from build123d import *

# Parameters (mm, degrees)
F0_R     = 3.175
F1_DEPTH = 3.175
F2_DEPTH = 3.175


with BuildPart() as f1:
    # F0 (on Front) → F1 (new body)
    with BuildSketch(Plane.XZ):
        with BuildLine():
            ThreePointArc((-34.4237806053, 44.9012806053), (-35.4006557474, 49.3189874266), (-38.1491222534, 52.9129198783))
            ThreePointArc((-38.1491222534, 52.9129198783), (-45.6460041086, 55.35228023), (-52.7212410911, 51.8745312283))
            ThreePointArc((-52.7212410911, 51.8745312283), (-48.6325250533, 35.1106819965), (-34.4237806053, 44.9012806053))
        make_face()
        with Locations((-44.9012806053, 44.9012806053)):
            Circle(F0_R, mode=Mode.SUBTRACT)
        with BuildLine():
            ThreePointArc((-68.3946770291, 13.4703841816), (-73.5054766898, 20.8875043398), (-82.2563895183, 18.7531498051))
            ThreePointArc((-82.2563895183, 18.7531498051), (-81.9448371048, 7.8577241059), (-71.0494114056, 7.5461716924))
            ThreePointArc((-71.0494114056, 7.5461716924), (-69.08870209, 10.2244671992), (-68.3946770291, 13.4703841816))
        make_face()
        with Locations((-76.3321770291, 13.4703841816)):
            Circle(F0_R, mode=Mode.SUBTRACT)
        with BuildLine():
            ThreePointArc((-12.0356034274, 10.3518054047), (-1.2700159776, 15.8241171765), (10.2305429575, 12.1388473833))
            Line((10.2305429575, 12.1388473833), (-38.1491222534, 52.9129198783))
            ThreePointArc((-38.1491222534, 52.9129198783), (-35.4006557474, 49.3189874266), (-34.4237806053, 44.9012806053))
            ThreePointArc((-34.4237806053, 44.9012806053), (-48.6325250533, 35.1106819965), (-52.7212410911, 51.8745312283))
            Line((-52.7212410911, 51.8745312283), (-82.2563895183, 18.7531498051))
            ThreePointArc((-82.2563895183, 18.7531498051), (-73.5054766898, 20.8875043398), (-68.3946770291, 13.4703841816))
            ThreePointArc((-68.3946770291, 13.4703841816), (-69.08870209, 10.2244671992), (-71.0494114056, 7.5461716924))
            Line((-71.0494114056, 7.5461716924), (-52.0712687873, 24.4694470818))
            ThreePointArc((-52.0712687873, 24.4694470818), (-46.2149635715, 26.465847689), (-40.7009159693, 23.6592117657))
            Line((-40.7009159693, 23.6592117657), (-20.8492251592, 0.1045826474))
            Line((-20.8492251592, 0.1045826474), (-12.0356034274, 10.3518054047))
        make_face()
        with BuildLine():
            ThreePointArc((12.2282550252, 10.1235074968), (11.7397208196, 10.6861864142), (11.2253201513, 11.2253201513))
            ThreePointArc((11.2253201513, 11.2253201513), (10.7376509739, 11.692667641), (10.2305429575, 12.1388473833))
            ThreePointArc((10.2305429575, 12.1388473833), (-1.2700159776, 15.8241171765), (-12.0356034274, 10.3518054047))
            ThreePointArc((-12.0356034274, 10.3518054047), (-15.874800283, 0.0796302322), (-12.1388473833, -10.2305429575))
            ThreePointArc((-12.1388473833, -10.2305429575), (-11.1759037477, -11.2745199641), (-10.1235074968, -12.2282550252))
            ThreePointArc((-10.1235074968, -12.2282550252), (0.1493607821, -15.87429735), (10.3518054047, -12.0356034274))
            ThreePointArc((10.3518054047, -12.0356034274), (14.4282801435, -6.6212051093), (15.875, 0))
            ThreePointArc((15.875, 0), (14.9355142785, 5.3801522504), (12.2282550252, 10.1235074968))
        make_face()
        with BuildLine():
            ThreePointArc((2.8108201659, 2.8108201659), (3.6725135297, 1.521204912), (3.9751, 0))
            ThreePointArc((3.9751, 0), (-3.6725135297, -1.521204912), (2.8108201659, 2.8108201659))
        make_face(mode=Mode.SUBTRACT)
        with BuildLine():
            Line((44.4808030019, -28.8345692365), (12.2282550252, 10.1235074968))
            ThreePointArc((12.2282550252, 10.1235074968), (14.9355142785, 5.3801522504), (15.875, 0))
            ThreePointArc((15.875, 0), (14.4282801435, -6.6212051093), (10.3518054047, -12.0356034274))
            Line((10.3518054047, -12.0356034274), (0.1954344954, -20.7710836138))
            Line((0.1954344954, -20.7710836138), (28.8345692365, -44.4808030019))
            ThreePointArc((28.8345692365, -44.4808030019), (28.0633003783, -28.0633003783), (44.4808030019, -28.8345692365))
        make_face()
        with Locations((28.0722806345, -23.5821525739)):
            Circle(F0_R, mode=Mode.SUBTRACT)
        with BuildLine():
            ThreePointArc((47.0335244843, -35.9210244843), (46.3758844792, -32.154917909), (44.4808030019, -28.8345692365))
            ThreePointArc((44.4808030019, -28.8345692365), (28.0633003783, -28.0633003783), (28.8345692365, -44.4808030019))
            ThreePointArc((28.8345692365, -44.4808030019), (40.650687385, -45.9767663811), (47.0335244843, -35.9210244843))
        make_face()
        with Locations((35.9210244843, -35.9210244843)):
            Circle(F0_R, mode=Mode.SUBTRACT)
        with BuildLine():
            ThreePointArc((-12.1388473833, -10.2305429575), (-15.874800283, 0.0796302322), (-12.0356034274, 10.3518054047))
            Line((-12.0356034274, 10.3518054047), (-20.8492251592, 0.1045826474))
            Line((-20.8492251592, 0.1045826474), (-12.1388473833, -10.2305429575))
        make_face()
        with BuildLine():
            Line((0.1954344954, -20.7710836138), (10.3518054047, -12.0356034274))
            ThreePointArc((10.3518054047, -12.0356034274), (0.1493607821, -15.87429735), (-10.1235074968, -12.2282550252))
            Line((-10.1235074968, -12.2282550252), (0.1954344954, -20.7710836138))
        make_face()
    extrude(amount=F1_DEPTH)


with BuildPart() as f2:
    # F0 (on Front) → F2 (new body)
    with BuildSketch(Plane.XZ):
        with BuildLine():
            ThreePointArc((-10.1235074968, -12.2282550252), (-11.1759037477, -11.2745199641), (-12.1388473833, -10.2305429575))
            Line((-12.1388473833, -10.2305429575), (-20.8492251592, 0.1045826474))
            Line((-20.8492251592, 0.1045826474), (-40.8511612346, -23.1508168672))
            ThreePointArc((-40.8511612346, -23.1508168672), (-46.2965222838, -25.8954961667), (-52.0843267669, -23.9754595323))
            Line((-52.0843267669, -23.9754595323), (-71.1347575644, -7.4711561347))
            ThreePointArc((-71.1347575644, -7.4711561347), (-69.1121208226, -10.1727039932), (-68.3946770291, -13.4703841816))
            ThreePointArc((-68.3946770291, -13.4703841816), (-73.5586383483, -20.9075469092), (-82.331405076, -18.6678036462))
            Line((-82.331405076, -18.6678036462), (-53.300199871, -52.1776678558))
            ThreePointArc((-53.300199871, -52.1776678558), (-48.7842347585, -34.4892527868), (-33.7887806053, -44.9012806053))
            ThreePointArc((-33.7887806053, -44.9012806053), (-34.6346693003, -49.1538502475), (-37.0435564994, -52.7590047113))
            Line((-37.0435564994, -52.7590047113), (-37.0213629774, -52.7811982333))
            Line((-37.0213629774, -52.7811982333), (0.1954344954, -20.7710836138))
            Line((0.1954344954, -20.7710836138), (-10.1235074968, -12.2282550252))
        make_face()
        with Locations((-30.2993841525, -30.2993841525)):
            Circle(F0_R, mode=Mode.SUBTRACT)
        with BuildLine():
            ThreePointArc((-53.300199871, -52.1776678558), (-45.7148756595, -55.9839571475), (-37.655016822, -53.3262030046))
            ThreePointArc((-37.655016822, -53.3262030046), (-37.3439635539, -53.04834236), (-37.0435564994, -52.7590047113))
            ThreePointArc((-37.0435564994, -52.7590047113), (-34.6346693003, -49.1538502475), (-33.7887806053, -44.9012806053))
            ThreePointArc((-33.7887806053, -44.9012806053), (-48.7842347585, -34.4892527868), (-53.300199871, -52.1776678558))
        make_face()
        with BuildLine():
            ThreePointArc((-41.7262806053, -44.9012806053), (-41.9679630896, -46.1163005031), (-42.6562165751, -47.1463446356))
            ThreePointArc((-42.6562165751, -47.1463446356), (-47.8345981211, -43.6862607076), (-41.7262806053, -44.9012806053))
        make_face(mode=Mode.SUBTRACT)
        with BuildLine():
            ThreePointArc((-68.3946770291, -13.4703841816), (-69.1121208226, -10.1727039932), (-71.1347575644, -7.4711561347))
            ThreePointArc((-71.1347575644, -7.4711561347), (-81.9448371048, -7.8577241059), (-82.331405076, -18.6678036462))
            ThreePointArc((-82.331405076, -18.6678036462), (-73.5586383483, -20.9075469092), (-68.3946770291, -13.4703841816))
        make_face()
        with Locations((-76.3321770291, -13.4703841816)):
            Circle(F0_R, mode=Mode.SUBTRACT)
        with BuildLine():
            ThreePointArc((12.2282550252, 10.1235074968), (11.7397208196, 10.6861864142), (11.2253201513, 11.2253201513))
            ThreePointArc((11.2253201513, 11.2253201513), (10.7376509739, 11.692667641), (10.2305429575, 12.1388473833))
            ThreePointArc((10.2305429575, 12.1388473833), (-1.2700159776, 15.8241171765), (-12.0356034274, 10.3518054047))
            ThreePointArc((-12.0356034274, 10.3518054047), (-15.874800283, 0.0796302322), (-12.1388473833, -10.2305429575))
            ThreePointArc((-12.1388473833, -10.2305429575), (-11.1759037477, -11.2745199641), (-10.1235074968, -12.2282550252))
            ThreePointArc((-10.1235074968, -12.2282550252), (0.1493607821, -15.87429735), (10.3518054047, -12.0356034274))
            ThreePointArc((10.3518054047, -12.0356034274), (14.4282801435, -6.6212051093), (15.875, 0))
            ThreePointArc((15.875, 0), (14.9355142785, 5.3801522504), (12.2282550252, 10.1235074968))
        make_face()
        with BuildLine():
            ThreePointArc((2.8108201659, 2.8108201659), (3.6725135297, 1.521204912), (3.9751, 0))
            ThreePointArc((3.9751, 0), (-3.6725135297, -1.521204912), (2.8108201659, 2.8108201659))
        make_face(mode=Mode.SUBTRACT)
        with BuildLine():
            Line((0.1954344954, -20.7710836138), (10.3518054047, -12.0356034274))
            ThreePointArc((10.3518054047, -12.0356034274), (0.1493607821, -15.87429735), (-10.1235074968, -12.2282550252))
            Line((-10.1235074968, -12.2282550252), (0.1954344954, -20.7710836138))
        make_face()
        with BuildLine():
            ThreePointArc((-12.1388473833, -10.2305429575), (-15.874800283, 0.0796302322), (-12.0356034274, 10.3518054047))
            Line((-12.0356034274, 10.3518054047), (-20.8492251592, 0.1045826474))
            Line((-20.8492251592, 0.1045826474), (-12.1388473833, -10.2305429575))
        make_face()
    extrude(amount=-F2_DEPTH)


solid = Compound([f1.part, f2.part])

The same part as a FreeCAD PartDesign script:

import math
import FreeCAD as App
import Part
import Sketcher
Q = App.Units.Quantity

doc = App.newDocument("Part")
body = doc.addObject("PartDesign::Body", "Body")

# Sketch on XZ plane
sketch1 = body.newObject("Sketcher::SketchObject", "Sketch")
sketch1.AttachmentSupport = (doc.getObject("XZ_Plane"), [""])
sketch1.MapMode = "FlatFace"
sketch1.addGeometry([
    Part.ArcOfCircle(Part.Circle(App.Vector(-44.9, 44.9, 0), App.Vector(0, 0, 1), 10.5), math.radians(50), math.radians(138)),  # 0
    Part.LineSegment(App.Vector(-52.7, 51.9, 0), App.Vector(-82.3, 18.8, 0)),  # 1
    Part.ArcOfCircle(Part.Circle(App.Vector(-76.3, 13.5, 0), App.Vector(0, 0, 1), 7.9), math.radians(138), math.radians(312)),  # 2
    Part.LineSegment(App.Vector(-71, 7.5, 0), App.Vector(-52.1, 24.5, 0)),  # 3
    Part.ArcOfCircle(Part.Circle(App.Vector(-46.8, 18.5, 0), App.Vector(0, 0, 1), 8), math.radians(40), math.radians(132)),  # 4
    Part.LineSegment(App.Vector(-40.7, 23.7, 0), App.Vector(-12.1, -10.2, 0)),  # 5
    Part.ArcOfCircle(Part.Circle(App.Vector(0, 0, 0), App.Vector(0, 0, 1), 15.9), math.radians(-139.88), math.radians(-129.62)),  # 6
    Part.LineSegment(App.Vector(-10.1, -12.2, 0), App.Vector(0.2, -20.8, 0)),  # 7
    Part.LineSegment(App.Vector(0.2, -20.8, 0), App.Vector(28.8, -44.5, 0)),  # 8
    Part.ArcOfCircle(Part.Circle(App.Vector(35.9, -35.9, 0), App.Vector(0, 0, 1), 11.1), math.radians(-130), math.radians(0)),  # 9
    Part.ArcOfCircle(Part.Circle(App.Vector(35.9, -35.9, 0), App.Vector(0, 0, 1), 11.1), math.radians(0), math.radians(40)),  # 10
    Part.LineSegment(App.Vector(44.5, -28.8, 0), App.Vector(12.2, 10.1, 0)),  # 11
    Part.ArcOfCircle(Part.Circle(App.Vector(0, 0, 0), App.Vector(0, 0, 1), 15.9), math.radians(39.62), math.radians(45)),  # 12
    Part.ArcOfCircle(Part.Circle(App.Vector(0, 0, 0), App.Vector(0, 0, 1), 15.9), math.radians(45), math.radians(49.88)),  # 13
    Part.LineSegment(App.Vector(10.2, 12.1, 0), App.Vector(-38.1, 52.9, 0)),  # 14
    Part.Circle(App.Vector(35.9, -35.9, 0), App.Vector(0, 0, 1), 3.2),  # 15
    Part.Circle(App.Vector(28.1, -23.6, 0), App.Vector(0, 0, 1), 3.2),  # 16
    Part.ArcOfCircle(Part.Circle(App.Vector(0, 0, 0), App.Vector(0, 0, 1), 4), math.radians(45), math.radians(360)),  # 17
    Part.ArcOfCircle(Part.Circle(App.Vector(0, 0, 0), App.Vector(0, 0, 1), 4), math.radians(0), math.radians(45)),  # 18
    Part.Circle(App.Vector(-76.3, 13.5, 0), App.Vector(0, 0, 1), 3.2),  # 19
    Part.Circle(App.Vector(-44.9, 44.9, 0), App.Vector(0, 0, 1), 3.2),  # 20
], False)
sketch1.addConstraint([
    Sketcher.Constraint("Tangent", 0, 2, 1, 1),
    Sketcher.Constraint("Tangent", 1, 2, 2, 1),
    Sketcher.Constraint("Tangent", 2, 2, 3, 1),
    Sketcher.Constraint("Tangent", 3, 2, 4, 2),
    Sketcher.Constraint("Tangent", 4, 1, 5, 1),
    Sketcher.Constraint("Tangent", 5, 2, 6, 1),
    Sketcher.Constraint("Tangent", 6, 2, 7, 1),
    Sketcher.Constraint("Coincident", 7, 2, 8, 1),
    Sketcher.Constraint("Tangent", 8, 2, 9, 1),
    Sketcher.Constraint("Tangent", 9, 2, 10, 1),
    Sketcher.Constraint("Tangent", 10, 2, 11, 1),
    Sketcher.Constraint("Tangent", 11, 2, 12, 1),
    Sketcher.Constraint("Tangent", 12, 2, 13, 1),
    Sketcher.Constraint("Tangent", 13, 2, 14, 1),
    Sketcher.Constraint("Tangent", 14, 2, 0, 1),
    Sketcher.Constraint("Tangent", 17, 1, 18, 2),
    Sketcher.Constraint("Coincident", 18, 1, 17, 2),
    Sketcher.Constraint("Coincident", 6, 3, -1, 1),
    Sketcher.Constraint("Coincident", 12, 3, -1, 1),
    Sketcher.Constraint("Coincident", 17, 3, -1, 1),
    Sketcher.Constraint("Coincident", 15, 3, 9, 3),
    Sketcher.Constraint("Coincident", 19, 3, 2, 3),
    Sketcher.Constraint("Coincident", 20, 3, 0, 3),
    Sketcher.Constraint("Equal", 9, 10),
    Sketcher.Constraint("Equal", 6, 12),
    Sketcher.Constraint("Equal", 12, 13),
    Sketcher.Constraint("Equal", 15, 16),
    Sketcher.Constraint("Equal", 16, 19),
    Sketcher.Constraint("Equal", 19, 20),
    Sketcher.Constraint("PointOnObject", 18, 1, -1),
    Sketcher.Constraint("Parallel", 7, 8),
    Sketcher.Constraint("Horizontal", 15, 3, 9, 2),
    Sketcher.Constraint("Diameter", 15, Q("0.25 in")),
    Sketcher.Constraint("Radius", 2, Q("0.3125 in")),
    Sketcher.Constraint("Radius", 4, Q("0.313 in")),
    Sketcher.Constraint("Radius", 6, Q("0.625 in")),
    Sketcher.Constraint("Radius", 9, Q("0.4375 in")),
    Sketcher.Constraint("Radius", 0, Q("0.4125 in")),
    Sketcher.Constraint("Radius", 17, Q("0.1565 in")),
    Sketcher.Constraint("DistanceX", 2, 3, 9, 3, Q("112.253202 mm")),
    Sketcher.Constraint("Distance", 1, Q("44.377369 mm")),
    Sketcher.Constraint("Distance", 8, Q("37.179979 mm")),
    Sketcher.Constraint("Distance", 14, Q("63.27019 mm")),
    Sketcher.Constraint("DistanceX", 0, 3, -1, 1, Q("44.901281 mm")),
    Sketcher.Constraint("DistanceX", 4, 3, -1, 1, Q("46.780051 mm")),
    Sketcher.Constraint("DistanceX", -1, 1, 16, 3, Q("28.072281 mm")),
    Sketcher.Constraint("DistanceX", 0, 2, -1, 1, Q("52.721241 mm")),
    Sketcher.Constraint("DistanceX", 2, 2, -1, 1, Q("71.049411 mm")),
    Sketcher.Constraint("DistanceX", -1, 1, 8, 2, Q("28.834569 mm")),
    Sketcher.Constraint("DistanceX", -1, 1, 12, 2, Q("11.22532 mm")),
    Sketcher.Constraint("DistanceX", -1, 1, 17, 1, Q("2.81082 mm")),
    Sketcher.Constraint("DistanceY", 9, 3, 16, 3, Q("12.338872 mm")),
])
pad1 = body.newObject("PartDesign::Pad", "Pad")
pad1.Profile = sketch1
pad1.Length = Q("0.125 in")
body2 = doc.addObject("PartDesign::Body", "Body001")

# Sketch on XZ plane
sketch2 = body2.newObject("Sketcher::SketchObject", "Sketch001")
sketch2.AttachmentSupport = (doc.getObject("XZ_Plane001"), [""])
sketch2.MapMode = "FlatFace"
sketch2.addGeometry([
    Part.LineSegment(App.Vector(-37.021363, -52.781198, 0), App.Vector(10.351805, -12.035603, 0)),  # 0
    Part.ArcOfCircle(Part.Circle(App.Vector(0, 0, 0), App.Vector(0, 0, 1), 15.875), math.radians(-49.301222), math.radians(0)),  # 1
    Part.ArcOfCircle(Part.Circle(App.Vector(0, 0, 0), App.Vector(0, 0, 1), 15.875), math.radians(0), math.radians(39.620621)),  # 2
    Part.ArcOfCircle(Part.Circle(App.Vector(0, 0, 0), App.Vector(0, 0, 1), 15.875), math.radians(39.620621), math.radians(45)),  # 3
    Part.ArcOfCircle(Part.Circle(App.Vector(0, 0, 0), App.Vector(0, 0, 1), 15.875), math.radians(45), math.radians(49.876025)),  # 4
    Part.ArcOfCircle(Part.Circle(App.Vector(0, 0, 0), App.Vector(0, 0, 1), 15.875), math.radians(49.876025), math.radians(139.301222)),  # 5
    Part.LineSegment(App.Vector(-12.035603, 10.351805, 0), App.Vector(-20.849225, 0.104583, 0)),  # 6
    Part.LineSegment(App.Vector(-20.849225, 0.104583, 0), App.Vector(-40.851161, -23.150817, 0)),  # 7
    Part.ArcOfCircle(Part.Circle(App.Vector(-46.878591, -17.966633, 0), App.Vector(0, 0, 1), 7.9502), math.radians(-130.903956), math.radians(-40.698778)),  # 8
    Part.LineSegment(App.Vector(-52.084327, -23.97546, 0), App.Vector(-71.134758, -7.471156, 0)),  # 9
    Part.ArcOfCircle(Part.Circle(App.Vector(-76.332177, -13.470384, 0), App.Vector(0, 0, 1), 7.9375), math.radians(49.096044), math.radians(220.903956)),  # 10
    Part.LineSegment(App.Vector(-82.331405, -18.667804, 0), App.Vector(-53.3002, -52.177668, 0)),  # 11
    Part.ArcOfCircle(Part.Circle(App.Vector(-44.901281, -44.901281, 0), App.Vector(0, 0, 1), 11.1125), math.radians(-139.096044), math.radians(-49.301222)),  # 12
    Part.ArcOfCircle(Part.Circle(App.Vector(-44.901281, -44.901281, 0), App.Vector(0, 0, 1), 11.1125), math.radians(-49.301222), math.radians(-45)),  # 13
    Part.LineSegment(App.Vector(-37.043556, -52.759005, 0), App.Vector(-37.021363, -52.781198, 0)),  # 14
    Part.ArcOfCircle(Part.Circle(App.Vector(-44.901281, -44.901281, 0), App.Vector(0, 0, 1), 3.175), math.radians(0), math.radians(315)),  # 15
    Part.ArcOfCircle(Part.Circle(App.Vector(-44.901281, -44.901281, 0), App.Vector(0, 0, 1), 3.175), math.radians(-45), math.radians(0)),  # 16
    Part.Circle(App.Vector(-30.299384, -30.299384, 0), App.Vector(0, 0, 1), 3.175),  # 17
    Part.Circle(App.Vector(-76.332177, -13.470384, 0), App.Vector(0, 0, 1), 3.175),  # 18
    Part.ArcOfCircle(Part.Circle(App.Vector(0, 0, 0), App.Vector(0, 0, 1), 3.9751), math.radians(45), math.radians(360)),  # 19
    Part.ArcOfCircle(Part.Circle(App.Vector(0, 0, 0), App.Vector(0, 0, 1), 3.9751), math.radians(0), math.radians(45)),  # 20
], False)
sketch2.addConstraint([
    Sketcher.Constraint("Coincident", 0, 2, 1, 1),
    Sketcher.Constraint("Coincident", 1, 2, 2, 1),
    Sketcher.Constraint("Coincident", 2, 2, 3, 1),
    Sketcher.Constraint("Coincident", 3, 2, 4, 1),
    Sketcher.Constraint("Coincident", 4, 2, 5, 1),
    Sketcher.Constraint("Coincident", 5, 2, 6, 1),
    Sketcher.Constraint("Coincident", 6, 2, 7, 1),
    Sketcher.Constraint("Coincident", 7, 2, 8, 2),
    Sketcher.Constraint("Coincident", 8, 1, 9, 1),
    Sketcher.Constraint("Coincident", 9, 2, 10, 1),
    Sketcher.Constraint("Coincident", 10, 2, 11, 1),
    Sketcher.Constraint("Coincident", 11, 2, 12, 1),
    Sketcher.Constraint("Coincident", 12, 2, 13, 1),
    Sketcher.Constraint("Coincident", 13, 2, 14, 1),
    Sketcher.Constraint("Coincident", 14, 2, 0, 1),
    Sketcher.Constraint("Coincident", 15, 1, 16, 2),
    Sketcher.Constraint("Coincident", 16, 1, 15, 2),
    Sketcher.Constraint("Coincident", 19, 1, 20, 2),
    Sketcher.Constraint("Coincident", 20, 1, 19, 2),
    Sketcher.Constraint("Coincident", 1, 3, -1, 1),
    Sketcher.Constraint("Coincident", 2, 3, -1, 1),
    Sketcher.Constraint("Coincident", 3, 3, -1, 1),
    Sketcher.Constraint("Coincident", 4, 3, -1, 1),
    Sketcher.Constraint("Coincident", 5, 3, -1, 1),
    Sketcher.Constraint("Coincident", 19, 3, -1, 1),
    Sketcher.Constraint("Coincident", 13, 3, 12, 3),
    Sketcher.Constraint("Coincident", 15, 3, 12, 3),
    Sketcher.Constraint("Coincident", 18, 3, 10, 3),
    Sketcher.Constraint("PointOnObject", 1, 2, -1),
    Sketcher.Constraint("PointOnObject", 20, 1, -1),
    Sketcher.Constraint("Diameter", 17, Q("0.25 in")),
    Sketcher.Constraint("Diameter", 18, Q("0.25 in")),
    Sketcher.Constraint("Radius", 1, Q("0.625 in")),
    Sketcher.Constraint("Radius", 8, Q("0.313 in")),
    Sketcher.Constraint("Radius", 10, Q("0.3125 in")),
    Sketcher.Constraint("Radius", 12, Q("0.4375 in")),
    Sketcher.Constraint("Radius", 15, Q("0.125 in")),
    Sketcher.Constraint("Radius", 16, Q("0.125 in")),
    Sketcher.Constraint("Radius", 19, Q("0.1565 in")),
    Sketcher.Constraint("Radius", 20, Q("0.1565 in")),
    Sketcher.Constraint("DistanceY", 14, 2, -1, 1, Q("2.0779999 in")),
    Sketcher.Constraint("DistanceX", 11, 2, -1, 1, Q("53.3002 mm")),
    Sketcher.Constraint("DistanceY", 12, 2, 13, 2, Q("0.567198 mm")),
    Sketcher.Constraint("Distance", 6, Q("13.51612 mm")),
    Sketcher.Constraint("DistanceX", 8, 3, -1, 1, Q("46.878591 mm")),
    Sketcher.Constraint("DistanceX", 12, 3, -1, 1, Q("44.901281 mm")),
    Sketcher.Constraint("DistanceY", 12, 3, -1, 1, Q("44.901281 mm")),
    Sketcher.Constraint("DistanceX", -1, 1, 3, 2, Q("11.22532 mm")),
    Sketcher.Constraint("DistanceX", 7, 2, -1, 1, Q("40.851161 mm")),
    Sketcher.Constraint("DistanceY", 8, 1, -1, 1, Q("23.97546 mm")),
    Sketcher.Constraint("DistanceY", 15, 1, -1, 1, Q("44.901281 mm")),
    Sketcher.Constraint("DistanceX", -1, 1, 19, 1, Q("2.81082 mm")),
    Sketcher.Constraint("DistanceY", 8, 3, 10, 3, Q("4.496249 mm")),
    Sketcher.Constraint("DistanceY", 17, 3, 8, 3, Q("12.332751 mm")),
    Sketcher.Constraint("DistanceY", 2, 2, 4, 2, Q("2.01534 mm")),
    Sketcher.Constraint("DistanceX", 6, 2, 5, 2, Q("8.813622 mm")),
    Sketcher.Constraint("DistanceX", 10, 3, 9, 2, Q("5.197419 mm")),
    Sketcher.Constraint("DistanceX", 9, 2, 8, 1, Q("19.050431 mm")),
    Sketcher.Constraint("DistanceX", 10, 2, 10, 3, Q("5.999228 mm")),
    Sketcher.Constraint("DistanceX", 12, 2, 13, 2, Q("0.61146 mm")),
    Sketcher.Constraint("Distance", 0, Q("62.485363 mm")),
    Sketcher.Constraint("Distance", 7, Q("30.673947 mm")),
    Sketcher.Constraint("Distance", 9, Q("25.205375 mm")),
    Sketcher.Constraint("Distance", 14, Q("0.031386 mm")),
    Sketcher.Constraint("DistanceX", 17, 3, -1, 1, Q("30.299384 mm")),
    Sketcher.Constraint("DistanceX", -1, 1, 2, 2, Q("12.228255 mm")),
    Sketcher.Constraint("DistanceX", 16, 1, -1, 1, Q("42.656217 mm")),
])
pad2 = body2.newObject("PartDesign::Pad", "Pad001")
pad2.Profile = sketch2
pad2.Length = Q("0.125 in")
pad2.Reversed = True

doc.recompute()
